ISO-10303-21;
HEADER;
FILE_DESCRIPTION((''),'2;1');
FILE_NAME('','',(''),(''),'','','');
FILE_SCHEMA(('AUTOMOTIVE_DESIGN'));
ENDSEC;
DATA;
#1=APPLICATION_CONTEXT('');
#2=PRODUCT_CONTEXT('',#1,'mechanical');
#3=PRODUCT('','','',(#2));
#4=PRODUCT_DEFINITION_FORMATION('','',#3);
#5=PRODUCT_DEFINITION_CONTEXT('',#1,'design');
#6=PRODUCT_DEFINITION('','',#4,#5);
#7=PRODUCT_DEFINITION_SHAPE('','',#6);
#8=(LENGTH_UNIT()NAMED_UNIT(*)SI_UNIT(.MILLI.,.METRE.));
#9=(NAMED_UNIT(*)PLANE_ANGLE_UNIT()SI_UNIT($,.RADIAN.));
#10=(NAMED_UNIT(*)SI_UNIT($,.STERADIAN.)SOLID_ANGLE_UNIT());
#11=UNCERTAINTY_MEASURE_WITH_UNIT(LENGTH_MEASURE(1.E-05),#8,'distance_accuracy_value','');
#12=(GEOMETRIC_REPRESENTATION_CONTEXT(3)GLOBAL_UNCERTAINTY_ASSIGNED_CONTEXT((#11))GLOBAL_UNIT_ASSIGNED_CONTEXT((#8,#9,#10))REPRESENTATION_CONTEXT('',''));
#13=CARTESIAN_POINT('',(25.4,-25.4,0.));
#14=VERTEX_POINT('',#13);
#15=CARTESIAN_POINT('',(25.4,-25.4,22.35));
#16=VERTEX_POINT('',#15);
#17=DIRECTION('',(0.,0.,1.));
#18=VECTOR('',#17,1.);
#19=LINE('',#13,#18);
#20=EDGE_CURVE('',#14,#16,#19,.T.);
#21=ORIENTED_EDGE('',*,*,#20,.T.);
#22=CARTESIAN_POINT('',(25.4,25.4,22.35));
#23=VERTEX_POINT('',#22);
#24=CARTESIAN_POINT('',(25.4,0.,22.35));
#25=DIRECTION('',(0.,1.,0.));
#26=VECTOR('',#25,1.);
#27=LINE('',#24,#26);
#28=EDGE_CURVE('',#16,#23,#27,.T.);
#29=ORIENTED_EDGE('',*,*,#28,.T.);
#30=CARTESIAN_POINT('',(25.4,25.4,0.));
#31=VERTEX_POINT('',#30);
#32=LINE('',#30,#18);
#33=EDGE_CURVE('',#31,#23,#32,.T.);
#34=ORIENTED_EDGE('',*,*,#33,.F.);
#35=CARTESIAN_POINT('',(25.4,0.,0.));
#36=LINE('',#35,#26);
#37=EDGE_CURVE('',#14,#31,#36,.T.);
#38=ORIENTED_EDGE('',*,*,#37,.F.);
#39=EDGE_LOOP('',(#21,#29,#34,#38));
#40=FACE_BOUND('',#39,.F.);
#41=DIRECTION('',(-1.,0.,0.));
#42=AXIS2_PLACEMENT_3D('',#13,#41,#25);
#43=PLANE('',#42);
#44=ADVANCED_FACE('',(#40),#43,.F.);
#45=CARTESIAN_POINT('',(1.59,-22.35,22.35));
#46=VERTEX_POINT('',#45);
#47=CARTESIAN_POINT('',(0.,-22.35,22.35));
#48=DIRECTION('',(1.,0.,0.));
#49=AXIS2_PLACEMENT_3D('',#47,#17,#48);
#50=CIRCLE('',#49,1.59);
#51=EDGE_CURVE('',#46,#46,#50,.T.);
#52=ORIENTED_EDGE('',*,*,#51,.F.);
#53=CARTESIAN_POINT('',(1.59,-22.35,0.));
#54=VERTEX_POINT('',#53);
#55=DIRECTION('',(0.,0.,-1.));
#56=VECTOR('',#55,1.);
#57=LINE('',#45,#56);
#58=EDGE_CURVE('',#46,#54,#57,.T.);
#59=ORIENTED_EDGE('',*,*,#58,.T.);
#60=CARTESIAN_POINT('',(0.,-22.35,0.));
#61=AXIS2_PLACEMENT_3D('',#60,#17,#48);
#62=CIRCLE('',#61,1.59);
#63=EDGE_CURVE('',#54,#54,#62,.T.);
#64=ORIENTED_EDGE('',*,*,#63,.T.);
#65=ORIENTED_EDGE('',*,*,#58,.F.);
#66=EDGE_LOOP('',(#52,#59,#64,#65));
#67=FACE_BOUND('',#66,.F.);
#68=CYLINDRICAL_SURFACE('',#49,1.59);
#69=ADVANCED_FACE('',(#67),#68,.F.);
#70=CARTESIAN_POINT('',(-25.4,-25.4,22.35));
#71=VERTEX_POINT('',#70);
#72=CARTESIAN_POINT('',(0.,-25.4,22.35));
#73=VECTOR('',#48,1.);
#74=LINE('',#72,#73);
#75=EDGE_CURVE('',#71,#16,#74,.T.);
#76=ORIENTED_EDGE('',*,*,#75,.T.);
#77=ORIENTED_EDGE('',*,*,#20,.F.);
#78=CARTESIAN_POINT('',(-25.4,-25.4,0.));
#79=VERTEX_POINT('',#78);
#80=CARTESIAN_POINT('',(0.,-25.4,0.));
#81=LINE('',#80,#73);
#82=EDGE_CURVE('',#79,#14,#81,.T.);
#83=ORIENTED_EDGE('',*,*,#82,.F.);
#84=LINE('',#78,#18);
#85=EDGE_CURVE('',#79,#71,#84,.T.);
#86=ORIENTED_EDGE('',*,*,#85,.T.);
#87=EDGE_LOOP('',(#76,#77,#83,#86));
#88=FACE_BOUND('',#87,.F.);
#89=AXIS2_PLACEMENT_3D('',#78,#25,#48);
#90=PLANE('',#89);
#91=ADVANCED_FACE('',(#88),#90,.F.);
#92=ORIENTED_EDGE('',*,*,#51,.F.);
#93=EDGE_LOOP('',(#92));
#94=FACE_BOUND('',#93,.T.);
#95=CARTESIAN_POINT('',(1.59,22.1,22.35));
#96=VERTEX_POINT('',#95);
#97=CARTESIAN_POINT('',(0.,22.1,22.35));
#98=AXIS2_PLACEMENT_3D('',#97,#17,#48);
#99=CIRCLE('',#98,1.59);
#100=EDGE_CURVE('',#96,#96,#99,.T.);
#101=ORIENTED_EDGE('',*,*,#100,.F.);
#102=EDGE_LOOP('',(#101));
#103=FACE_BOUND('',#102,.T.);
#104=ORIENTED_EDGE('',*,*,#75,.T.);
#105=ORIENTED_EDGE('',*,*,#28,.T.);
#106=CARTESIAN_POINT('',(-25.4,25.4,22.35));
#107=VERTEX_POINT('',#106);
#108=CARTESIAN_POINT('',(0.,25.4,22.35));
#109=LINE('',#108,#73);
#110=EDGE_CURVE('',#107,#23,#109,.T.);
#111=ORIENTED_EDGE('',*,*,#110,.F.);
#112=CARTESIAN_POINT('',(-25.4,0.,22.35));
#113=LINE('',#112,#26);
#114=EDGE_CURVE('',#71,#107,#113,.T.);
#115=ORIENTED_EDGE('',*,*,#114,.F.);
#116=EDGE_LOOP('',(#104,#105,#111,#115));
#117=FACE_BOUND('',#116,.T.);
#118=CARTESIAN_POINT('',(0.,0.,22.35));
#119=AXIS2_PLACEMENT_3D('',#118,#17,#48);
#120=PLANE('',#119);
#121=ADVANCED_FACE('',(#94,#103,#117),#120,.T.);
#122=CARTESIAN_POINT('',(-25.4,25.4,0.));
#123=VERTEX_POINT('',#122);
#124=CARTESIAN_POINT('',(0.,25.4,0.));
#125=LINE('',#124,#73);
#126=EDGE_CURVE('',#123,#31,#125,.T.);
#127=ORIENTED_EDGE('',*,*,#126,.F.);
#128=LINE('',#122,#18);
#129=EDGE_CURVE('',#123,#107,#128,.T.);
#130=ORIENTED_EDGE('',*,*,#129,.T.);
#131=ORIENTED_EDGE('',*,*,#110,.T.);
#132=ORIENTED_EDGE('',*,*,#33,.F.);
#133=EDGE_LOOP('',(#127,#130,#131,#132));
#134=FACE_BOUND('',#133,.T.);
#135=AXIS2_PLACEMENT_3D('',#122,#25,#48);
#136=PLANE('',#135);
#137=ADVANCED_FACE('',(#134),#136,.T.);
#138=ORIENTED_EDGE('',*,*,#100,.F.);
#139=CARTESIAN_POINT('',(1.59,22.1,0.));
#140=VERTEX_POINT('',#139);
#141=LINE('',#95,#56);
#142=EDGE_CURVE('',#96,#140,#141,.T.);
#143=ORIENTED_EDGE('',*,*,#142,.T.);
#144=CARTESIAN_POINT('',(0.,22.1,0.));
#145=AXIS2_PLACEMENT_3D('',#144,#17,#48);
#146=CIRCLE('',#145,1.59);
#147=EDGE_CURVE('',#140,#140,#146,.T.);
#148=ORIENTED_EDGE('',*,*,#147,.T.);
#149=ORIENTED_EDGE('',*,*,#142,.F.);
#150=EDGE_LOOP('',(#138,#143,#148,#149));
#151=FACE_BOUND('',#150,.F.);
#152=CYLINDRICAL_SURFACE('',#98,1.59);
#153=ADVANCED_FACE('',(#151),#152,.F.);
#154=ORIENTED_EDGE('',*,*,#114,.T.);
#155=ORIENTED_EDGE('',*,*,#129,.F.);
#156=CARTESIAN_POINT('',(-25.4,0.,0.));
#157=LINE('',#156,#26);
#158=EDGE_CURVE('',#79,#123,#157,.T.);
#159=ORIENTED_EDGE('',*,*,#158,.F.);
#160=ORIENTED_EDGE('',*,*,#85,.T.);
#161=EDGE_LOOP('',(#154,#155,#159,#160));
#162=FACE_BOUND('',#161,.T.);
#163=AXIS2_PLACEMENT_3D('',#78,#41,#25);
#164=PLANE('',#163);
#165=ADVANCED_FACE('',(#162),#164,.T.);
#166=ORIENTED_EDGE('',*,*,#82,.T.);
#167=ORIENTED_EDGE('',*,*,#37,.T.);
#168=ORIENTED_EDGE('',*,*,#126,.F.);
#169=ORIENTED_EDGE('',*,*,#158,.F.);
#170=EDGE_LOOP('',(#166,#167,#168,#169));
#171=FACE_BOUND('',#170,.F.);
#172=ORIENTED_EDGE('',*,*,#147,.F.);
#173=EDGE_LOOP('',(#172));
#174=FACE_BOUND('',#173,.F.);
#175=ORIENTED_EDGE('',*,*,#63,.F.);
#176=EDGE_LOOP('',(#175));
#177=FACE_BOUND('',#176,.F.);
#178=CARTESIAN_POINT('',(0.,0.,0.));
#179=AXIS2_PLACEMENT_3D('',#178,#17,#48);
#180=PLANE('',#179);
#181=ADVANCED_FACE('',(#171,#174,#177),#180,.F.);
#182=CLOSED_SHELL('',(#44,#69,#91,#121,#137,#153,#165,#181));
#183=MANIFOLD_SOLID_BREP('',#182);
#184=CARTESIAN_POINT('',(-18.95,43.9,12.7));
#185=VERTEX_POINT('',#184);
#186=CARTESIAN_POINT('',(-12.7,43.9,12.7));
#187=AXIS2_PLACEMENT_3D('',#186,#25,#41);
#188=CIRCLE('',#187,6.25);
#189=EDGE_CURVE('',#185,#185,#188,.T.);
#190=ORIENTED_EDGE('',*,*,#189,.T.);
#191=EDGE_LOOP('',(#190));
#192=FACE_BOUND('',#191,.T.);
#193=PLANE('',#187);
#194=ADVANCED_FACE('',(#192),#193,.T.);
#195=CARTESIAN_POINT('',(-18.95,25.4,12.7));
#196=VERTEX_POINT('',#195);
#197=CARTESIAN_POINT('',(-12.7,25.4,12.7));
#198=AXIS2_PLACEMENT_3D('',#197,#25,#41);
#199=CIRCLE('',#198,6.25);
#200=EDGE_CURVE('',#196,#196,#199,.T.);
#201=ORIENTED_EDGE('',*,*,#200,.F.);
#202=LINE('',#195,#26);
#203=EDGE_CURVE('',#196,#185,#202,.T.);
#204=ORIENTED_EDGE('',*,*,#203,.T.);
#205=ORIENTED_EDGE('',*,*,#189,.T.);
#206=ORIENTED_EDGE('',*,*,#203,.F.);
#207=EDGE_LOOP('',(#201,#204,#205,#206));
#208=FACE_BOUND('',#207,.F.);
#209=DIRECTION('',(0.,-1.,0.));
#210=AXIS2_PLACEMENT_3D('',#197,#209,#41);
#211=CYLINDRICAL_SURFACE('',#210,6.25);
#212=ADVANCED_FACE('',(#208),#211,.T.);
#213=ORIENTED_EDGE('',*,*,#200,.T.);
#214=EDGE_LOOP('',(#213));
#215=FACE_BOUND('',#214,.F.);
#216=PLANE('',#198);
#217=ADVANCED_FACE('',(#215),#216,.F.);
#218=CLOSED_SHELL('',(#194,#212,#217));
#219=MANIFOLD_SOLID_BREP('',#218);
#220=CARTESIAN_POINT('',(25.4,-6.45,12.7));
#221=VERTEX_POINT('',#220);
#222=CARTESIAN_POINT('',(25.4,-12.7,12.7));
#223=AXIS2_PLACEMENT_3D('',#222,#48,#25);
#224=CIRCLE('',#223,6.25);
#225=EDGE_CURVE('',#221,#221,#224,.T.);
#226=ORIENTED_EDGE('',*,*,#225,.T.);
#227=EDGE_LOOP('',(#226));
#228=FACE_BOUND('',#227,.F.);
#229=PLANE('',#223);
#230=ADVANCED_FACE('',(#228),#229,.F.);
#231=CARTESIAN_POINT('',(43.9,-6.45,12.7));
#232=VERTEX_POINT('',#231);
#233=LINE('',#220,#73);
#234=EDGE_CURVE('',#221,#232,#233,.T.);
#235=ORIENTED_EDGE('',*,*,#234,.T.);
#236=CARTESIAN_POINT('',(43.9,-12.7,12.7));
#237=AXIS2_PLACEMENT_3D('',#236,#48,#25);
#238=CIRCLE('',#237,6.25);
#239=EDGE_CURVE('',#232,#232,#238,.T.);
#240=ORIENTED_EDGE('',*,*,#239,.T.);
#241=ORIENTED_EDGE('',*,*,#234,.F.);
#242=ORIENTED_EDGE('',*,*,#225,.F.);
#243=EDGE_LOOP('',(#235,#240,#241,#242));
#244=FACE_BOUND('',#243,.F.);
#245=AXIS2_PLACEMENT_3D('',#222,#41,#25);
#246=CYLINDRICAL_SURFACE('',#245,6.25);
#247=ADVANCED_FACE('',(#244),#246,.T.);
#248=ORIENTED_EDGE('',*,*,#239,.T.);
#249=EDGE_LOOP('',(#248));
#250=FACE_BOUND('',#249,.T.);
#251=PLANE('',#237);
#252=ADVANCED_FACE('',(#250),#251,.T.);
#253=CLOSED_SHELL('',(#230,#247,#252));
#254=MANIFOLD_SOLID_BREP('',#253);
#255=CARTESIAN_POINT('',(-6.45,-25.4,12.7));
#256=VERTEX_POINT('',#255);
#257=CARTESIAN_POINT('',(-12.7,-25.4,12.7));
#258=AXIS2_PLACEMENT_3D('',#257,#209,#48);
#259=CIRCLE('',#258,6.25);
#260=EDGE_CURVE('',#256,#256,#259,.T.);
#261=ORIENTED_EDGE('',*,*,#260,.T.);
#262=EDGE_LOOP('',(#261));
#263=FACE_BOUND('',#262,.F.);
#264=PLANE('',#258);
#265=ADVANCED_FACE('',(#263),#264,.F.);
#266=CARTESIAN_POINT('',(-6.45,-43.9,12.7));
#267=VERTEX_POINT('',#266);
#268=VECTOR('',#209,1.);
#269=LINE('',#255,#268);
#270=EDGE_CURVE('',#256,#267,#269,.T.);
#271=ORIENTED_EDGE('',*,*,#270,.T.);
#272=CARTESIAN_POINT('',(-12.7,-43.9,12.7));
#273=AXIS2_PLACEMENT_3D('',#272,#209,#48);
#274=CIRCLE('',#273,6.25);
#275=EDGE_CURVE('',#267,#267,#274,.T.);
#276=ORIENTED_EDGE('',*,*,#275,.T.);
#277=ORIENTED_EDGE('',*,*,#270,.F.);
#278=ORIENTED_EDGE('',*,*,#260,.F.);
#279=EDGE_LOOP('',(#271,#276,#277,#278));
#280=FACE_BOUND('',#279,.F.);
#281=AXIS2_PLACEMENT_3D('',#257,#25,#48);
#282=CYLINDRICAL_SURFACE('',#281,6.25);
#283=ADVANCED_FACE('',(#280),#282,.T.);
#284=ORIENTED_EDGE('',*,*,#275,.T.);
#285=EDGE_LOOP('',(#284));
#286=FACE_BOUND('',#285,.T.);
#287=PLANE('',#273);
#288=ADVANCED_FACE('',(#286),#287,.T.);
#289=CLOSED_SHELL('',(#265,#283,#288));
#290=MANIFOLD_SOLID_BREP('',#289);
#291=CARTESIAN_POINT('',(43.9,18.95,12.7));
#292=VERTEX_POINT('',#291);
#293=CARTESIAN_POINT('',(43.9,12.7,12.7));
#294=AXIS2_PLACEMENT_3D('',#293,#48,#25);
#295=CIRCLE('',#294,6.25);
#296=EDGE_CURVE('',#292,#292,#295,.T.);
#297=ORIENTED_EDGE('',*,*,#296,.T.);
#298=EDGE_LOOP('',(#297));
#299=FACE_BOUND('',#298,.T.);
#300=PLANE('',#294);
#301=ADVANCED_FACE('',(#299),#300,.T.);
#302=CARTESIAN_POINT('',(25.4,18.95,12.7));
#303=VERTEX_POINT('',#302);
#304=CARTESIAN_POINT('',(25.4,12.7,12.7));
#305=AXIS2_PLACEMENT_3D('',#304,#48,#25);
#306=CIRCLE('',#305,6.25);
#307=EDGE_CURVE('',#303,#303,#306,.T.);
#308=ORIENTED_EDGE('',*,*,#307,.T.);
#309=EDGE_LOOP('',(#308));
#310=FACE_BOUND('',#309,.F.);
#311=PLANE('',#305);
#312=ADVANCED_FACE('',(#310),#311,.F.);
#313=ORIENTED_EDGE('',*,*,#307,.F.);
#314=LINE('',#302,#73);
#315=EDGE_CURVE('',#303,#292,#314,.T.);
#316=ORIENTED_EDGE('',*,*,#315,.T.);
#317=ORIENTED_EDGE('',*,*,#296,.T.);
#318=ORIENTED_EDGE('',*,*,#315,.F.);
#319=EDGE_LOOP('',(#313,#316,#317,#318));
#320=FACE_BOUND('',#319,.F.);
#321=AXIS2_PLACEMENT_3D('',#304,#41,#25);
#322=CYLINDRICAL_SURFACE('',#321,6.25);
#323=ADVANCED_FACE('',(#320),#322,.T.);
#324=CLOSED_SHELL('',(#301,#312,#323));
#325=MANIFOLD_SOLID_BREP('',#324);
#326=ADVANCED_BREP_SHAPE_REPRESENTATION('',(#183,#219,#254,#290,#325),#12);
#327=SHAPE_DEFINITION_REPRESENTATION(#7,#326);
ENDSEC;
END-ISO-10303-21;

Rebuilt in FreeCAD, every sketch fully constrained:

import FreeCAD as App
import Part
import Sketcher

V = App.Vector


def add_polygon(sketch, points):
    """Adds a closed chain of lines whose ends are joined by coincident constraints."""
    first, n = sketch.GeometryCount, len(points)
    for a, b in zip(points, points[1:] + points[:1]):
        sketch.addGeometry(Part.LineSegment(App.Vector(*a, 0), App.Vector(*b, 0)), False)
    for i in range(n):
        sketch.addConstraint(Sketcher.Constraint("Coincident", first + i, 2, first + (i + 1) % n, 1))

doc = App.newDocument("Part")
body = doc.addObject("PartDesign::Body", "Body")

# Sketch on XY plane
sketch1 = doc.addObject("Sketcher::SketchObject", "Sketch")
body.addObject(sketch1)
sketch1.AttachmentSupport = (doc.XY_Plane, [""])
sketch1.MapMode = "FlatFace"
add_polygon(sketch1, [(-25.4, 25.4), (-25.4, -25.4), (25.4, -25.4), (25.4, 25.4)])  # lines 0-3
sketch1.addConstraint(Sketcher.Constraint("Vertical", 0))
sketch1.addConstraint(Sketcher.Constraint("Horizontal", 1))
sketch1.addConstraint(Sketcher.Constraint("Vertical", 2))
sketch1.addConstraint(Sketcher.Constraint("Horizontal", 3))
sketch1.addConstraint(Sketcher.Constraint("Symmetric", 0, 2, 2, 2, -1, 1))
sketch1.addConstraint(Sketcher.Constraint("Equal", 3, 0))
sketch1.addConstraint(Sketcher.Constraint("DistanceX", 1, 1, 1, 2, 50.8))
pad1 = doc.addObject("PartDesign::Pad", "Pad")
body.addObject(pad1)
pad1.Profile = sketch1
pad1.Length = 22.35

# Sketch on XY plane
sketch2 = doc.addObject("Sketcher::SketchObject", "Sketch001")
body.addObject(sketch2)
sketch2.AttachmentSupport = (doc.XY_Plane, [""])
sketch2.MapMode = "FlatFace"
sketch2.AttachmentOffset = App.Placement(V(0, 0, 22.35), App.Rotation())
sketch2.addGeometry(Part.Circle(V(0, 22.1, 0), V(0, 0, 1), 1.59), False)
sketch2.addGeometry(Part.Circle(V(0, -22.35, 0), V(0, 0, 1), 1.59), False)
sketch2.addConstraint(Sketcher.Constraint("Equal", 0, 1))
sketch2.addConstraint(Sketcher.Constraint("PointOnObject", 0, 3, -2))
sketch2.addConstraint(Sketcher.Constraint("PointOnObject", 1, 3, -2))
sketch2.addConstraint(Sketcher.Constraint("Diameter", 0, 3.18))
sketch2.addConstraint(Sketcher.Constraint("DistanceY", -1, 1, 0, 3, 22.1))
sketch2.addConstraint(Sketcher.Constraint("DistanceY", 1, 3, -1, 1, 22.35))
pocket1 = doc.addObject("PartDesign::Pocket", "Pocket")
body.addObject(pocket1)
pocket1.Profile = sketch2
pocket1.Type = "ThroughAll"
body2 = doc.addObject("PartDesign::Body", "Body001")

# Sketch on YZ plane
sketch3 = doc.addObject("Sketcher::SketchObject", "Sketch002")
body2.addObject(sketch3)
sketch3.AttachmentSupport = (doc.getObject("YZ_Plane001"), [""])
sketch3.MapMode = "FlatFace"
sketch3.AttachmentOffset = App.Placement(V(0, 0, 25.4), App.Rotation())
sketch3.addGeometry(Part.Circle(V(-12.7, 12.7, 0), V(0, 0, 1), 6.25), False)
sketch3.addConstraint(Sketcher.Constraint("Diameter", 0, 12.5))
sketch3.addConstraint(Sketcher.Constraint("DistanceX", 0, 3, -1, 1, 12.7))
sketch3.addConstraint(Sketcher.Constraint("DistanceY", -1, 1, 0, 3, 12.7))
pad2 = doc.addObject("PartDesign::Pad", "Pad001")
body2.addObject(pad2)
pad2.Profile = sketch3
pad2.Length = 18.5
body3 = doc.addObject("PartDesign::Body", "Body002")

# Sketch on YZ plane
sketch4 = doc.addObject("Sketcher::SketchObject", "Sketch003")
body3.addObject(sketch4)
sketch4.AttachmentSupport = (doc.getObject("YZ_Plane002"), [""])
sketch4.MapMode = "FlatFace"
sketch4.AttachmentOffset = App.Placement(V(0, 0, 25.4), App.Rotation())
sketch4.addGeometry(Part.Circle(V(12.7, 12.7, 0), V(0, 0, 1), 6.25), False)
sketch4.addConstraint(Sketcher.Constraint("Diameter", 0, 12.5))
sketch4.addConstraint(Sketcher.Constraint("DistanceX", -1, 1, 0, 3, 12.7))
sketch4.addConstraint(Sketcher.Constraint("DistanceY", -1, 1, 0, 3, 12.7))
pad3 = doc.addObject("PartDesign::Pad", "Pad002")
body3.addObject(pad3)
pad3.Profile = sketch4
pad3.Length = 18.5
body4 = doc.addObject("PartDesign::Body", "Body003")

# Sketch on XZ plane
sketch5 = doc.addObject("Sketcher::SketchObject", "Sketch004")
body4.addObject(sketch5)
sketch5.AttachmentSupport = (doc.getObject("XZ_Plane003"), [""])
sketch5.MapMode = "FlatFace"
sketch5.AttachmentOffset = App.Placement(V(0, 0, 25.4), App.Rotation())
sketch5.addGeometry(Part.Circle(V(-12.7, 12.7, 0), V(0, 0, 1), 6.25), False)
sketch5.addConstraint(Sketcher.Constraint("Diameter", 0, 12.5))
sketch5.addConstraint(Sketcher.Constraint("DistanceX", 0, 3, -1, 1, 12.7))
sketch5.addConstraint(Sketcher.Constraint("DistanceY", -1, 1, 0, 3, 12.7))
pad4 = doc.addObject("PartDesign::Pad", "Pad003")
body4.addObject(pad4)
pad4.Profile = sketch5
pad4.Length = 18.5
body5 = doc.addObject("PartDesign::Body", "Body004")

# Sketch on XZ plane
sketch6 = doc.addObject("Sketcher::SketchObject", "Sketch005")
body5.addObject(sketch6)
sketch6.AttachmentSupport = (doc.getObject("XZ_Plane004"), [""])
sketch6.MapMode = "FlatFace"
sketch6.AttachmentOffset = App.Placement(V(0, 0, -25.4), App.Rotation())
sketch6.addGeometry(Part.Circle(V(-12.7, 12.7, 0), V(0, 0, 1), 6.25), False)
sketch6.addConstraint(Sketcher.Constraint("Diameter", 0, 12.5))
sketch6.addConstraint(Sketcher.Constraint("DistanceX", 0, 3, -1, 1, 12.7))
sketch6.addConstraint(Sketcher.Constraint("DistanceY", -1, 1, 0, 3, 12.7))
pad5 = doc.addObject("PartDesign::Pad", "Pad004")
body5.addObject(pad5)
pad5.Profile = sketch6
pad5.Length = 18.5
pad5.Reversed = True

doc.recompute()
